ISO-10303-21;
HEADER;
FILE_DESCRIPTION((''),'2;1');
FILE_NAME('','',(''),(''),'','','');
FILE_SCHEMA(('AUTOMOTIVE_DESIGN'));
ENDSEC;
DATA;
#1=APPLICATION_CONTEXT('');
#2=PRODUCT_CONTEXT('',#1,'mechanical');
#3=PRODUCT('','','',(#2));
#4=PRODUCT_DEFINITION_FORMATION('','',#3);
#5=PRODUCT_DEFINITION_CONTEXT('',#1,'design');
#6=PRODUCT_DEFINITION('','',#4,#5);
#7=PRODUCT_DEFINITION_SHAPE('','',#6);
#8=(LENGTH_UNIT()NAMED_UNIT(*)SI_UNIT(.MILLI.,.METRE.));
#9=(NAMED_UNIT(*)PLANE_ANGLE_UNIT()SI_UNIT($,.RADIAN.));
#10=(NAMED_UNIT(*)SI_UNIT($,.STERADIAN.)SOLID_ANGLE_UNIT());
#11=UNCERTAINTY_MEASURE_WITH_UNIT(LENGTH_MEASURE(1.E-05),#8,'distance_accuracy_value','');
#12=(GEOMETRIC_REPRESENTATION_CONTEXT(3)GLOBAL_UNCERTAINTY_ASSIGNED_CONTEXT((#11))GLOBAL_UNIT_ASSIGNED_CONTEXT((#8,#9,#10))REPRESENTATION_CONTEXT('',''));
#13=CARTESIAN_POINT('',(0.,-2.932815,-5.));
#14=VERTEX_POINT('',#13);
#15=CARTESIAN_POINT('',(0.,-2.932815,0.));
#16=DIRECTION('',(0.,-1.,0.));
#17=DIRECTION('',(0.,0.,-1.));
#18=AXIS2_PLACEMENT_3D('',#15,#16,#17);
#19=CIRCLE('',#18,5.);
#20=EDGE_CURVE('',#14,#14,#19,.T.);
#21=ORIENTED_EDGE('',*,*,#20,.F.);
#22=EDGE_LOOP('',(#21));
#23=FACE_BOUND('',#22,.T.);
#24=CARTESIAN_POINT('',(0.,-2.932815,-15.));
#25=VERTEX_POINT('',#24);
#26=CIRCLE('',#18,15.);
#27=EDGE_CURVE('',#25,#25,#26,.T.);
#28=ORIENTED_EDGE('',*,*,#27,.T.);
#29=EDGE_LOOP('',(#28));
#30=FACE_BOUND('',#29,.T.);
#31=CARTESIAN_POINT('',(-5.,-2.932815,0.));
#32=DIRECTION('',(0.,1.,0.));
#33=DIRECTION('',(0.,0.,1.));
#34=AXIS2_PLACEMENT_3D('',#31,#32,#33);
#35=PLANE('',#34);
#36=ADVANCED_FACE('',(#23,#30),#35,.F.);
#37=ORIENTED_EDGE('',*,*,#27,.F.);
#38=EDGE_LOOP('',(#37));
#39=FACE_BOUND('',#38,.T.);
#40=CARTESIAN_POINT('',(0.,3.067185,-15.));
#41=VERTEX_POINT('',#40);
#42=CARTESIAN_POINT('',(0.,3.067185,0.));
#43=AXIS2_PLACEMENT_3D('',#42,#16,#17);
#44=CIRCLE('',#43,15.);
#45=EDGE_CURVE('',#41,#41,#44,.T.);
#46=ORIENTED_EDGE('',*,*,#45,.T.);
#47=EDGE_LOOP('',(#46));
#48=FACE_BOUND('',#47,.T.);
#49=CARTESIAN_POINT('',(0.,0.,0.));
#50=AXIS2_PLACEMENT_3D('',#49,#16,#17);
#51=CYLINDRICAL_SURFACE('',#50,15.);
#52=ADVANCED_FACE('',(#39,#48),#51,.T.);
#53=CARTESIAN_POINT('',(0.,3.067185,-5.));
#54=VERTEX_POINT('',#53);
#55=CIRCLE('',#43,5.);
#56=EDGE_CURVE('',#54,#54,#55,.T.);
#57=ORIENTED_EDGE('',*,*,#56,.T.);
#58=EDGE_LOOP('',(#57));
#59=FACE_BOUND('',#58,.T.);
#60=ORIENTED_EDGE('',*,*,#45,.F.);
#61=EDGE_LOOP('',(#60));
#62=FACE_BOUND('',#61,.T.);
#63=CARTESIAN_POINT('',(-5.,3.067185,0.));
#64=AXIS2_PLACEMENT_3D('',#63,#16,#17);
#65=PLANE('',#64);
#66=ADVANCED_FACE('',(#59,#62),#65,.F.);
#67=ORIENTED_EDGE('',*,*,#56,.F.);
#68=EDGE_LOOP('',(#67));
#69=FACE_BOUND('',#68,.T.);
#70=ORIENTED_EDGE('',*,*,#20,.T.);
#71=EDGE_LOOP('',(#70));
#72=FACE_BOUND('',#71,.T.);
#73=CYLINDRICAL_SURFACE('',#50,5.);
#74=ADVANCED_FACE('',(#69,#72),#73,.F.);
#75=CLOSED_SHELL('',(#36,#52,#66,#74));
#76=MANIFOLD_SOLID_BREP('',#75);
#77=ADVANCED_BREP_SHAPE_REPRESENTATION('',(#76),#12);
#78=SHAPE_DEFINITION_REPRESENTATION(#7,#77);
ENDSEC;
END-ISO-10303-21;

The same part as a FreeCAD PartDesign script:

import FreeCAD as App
import Part
import Sketcher

V = App.Vector
Q = App.Units.Quantity

doc = App.newDocument("Part")
body = doc.addObject("PartDesign::Body", "Body")

# Sketch on XY plane
sketch1 = body.newObject("Sketcher::SketchObject", "Sketch")
sketch1.AttachmentSupport = (doc.getObject("XY_Plane"), [""])
sketch1.MapMode = "FlatFace"
sketch1.addGeometry(Part.LineSegment(V(-15, 3.067185, 0), V(-15, -2.932815, 0)), False)
sketch1.addGeometry(Part.LineSegment(V(-15, -2.932815, 0), V(-5, -2.932815, 0)), False)
sketch1.addGeometry(Part.LineSegment(V(-5, -2.932815, 0), V(-5, 3.067185, 0)), False)
sketch1.addGeometry(Part.LineSegment(V(-5, 3.067185, 0), V(-15, 3.067185, 0)), False)
sketch1.addConstraint(Sketcher.Constraint("Coincident", 0, 2, 1, 1))
sketch1.addConstraint(Sketcher.Constraint("Coincident", 1, 2, 2, 1))
sketch1.addConstraint(Sketcher.Constraint("Coincident", 2, 2, 3, 1))
sketch1.addConstraint(Sketcher.Constraint("Coincident", 3, 2, 0, 1))
sketch1.addConstraint(Sketcher.Constraint("Vertical", 0))
sketch1.addConstraint(Sketcher.Constraint("Horizontal", 1))
sketch1.addConstraint(Sketcher.Constraint("Vertical", 2))
sketch1.addConstraint(Sketcher.Constraint("Horizontal", 3))
sketch1.addConstraint(Sketcher.Constraint("DistanceX", 1, 1, 1, 2, Q("10 mm")))
sketch1.addConstraint(Sketcher.Constraint("DistanceY", 0, 2, 0, 1, Q("6 mm")))
sketch1.addConstraint(Sketcher.Constraint("DistanceX", 0, 2, -1, 1, Q("15 mm")))
sketch1.addConstraint(Sketcher.Constraint("DistanceY", 0, 2, -1, 1, Q("2.932815 mm")))
revolution = body.newObject("PartDesign::Revolution", "Revolution")
revolution.Profile = sketch1
revolution.ReferenceAxis = (sketch1, ["V_Axis"])
revolution.Angle = 360

doc.recompute()
